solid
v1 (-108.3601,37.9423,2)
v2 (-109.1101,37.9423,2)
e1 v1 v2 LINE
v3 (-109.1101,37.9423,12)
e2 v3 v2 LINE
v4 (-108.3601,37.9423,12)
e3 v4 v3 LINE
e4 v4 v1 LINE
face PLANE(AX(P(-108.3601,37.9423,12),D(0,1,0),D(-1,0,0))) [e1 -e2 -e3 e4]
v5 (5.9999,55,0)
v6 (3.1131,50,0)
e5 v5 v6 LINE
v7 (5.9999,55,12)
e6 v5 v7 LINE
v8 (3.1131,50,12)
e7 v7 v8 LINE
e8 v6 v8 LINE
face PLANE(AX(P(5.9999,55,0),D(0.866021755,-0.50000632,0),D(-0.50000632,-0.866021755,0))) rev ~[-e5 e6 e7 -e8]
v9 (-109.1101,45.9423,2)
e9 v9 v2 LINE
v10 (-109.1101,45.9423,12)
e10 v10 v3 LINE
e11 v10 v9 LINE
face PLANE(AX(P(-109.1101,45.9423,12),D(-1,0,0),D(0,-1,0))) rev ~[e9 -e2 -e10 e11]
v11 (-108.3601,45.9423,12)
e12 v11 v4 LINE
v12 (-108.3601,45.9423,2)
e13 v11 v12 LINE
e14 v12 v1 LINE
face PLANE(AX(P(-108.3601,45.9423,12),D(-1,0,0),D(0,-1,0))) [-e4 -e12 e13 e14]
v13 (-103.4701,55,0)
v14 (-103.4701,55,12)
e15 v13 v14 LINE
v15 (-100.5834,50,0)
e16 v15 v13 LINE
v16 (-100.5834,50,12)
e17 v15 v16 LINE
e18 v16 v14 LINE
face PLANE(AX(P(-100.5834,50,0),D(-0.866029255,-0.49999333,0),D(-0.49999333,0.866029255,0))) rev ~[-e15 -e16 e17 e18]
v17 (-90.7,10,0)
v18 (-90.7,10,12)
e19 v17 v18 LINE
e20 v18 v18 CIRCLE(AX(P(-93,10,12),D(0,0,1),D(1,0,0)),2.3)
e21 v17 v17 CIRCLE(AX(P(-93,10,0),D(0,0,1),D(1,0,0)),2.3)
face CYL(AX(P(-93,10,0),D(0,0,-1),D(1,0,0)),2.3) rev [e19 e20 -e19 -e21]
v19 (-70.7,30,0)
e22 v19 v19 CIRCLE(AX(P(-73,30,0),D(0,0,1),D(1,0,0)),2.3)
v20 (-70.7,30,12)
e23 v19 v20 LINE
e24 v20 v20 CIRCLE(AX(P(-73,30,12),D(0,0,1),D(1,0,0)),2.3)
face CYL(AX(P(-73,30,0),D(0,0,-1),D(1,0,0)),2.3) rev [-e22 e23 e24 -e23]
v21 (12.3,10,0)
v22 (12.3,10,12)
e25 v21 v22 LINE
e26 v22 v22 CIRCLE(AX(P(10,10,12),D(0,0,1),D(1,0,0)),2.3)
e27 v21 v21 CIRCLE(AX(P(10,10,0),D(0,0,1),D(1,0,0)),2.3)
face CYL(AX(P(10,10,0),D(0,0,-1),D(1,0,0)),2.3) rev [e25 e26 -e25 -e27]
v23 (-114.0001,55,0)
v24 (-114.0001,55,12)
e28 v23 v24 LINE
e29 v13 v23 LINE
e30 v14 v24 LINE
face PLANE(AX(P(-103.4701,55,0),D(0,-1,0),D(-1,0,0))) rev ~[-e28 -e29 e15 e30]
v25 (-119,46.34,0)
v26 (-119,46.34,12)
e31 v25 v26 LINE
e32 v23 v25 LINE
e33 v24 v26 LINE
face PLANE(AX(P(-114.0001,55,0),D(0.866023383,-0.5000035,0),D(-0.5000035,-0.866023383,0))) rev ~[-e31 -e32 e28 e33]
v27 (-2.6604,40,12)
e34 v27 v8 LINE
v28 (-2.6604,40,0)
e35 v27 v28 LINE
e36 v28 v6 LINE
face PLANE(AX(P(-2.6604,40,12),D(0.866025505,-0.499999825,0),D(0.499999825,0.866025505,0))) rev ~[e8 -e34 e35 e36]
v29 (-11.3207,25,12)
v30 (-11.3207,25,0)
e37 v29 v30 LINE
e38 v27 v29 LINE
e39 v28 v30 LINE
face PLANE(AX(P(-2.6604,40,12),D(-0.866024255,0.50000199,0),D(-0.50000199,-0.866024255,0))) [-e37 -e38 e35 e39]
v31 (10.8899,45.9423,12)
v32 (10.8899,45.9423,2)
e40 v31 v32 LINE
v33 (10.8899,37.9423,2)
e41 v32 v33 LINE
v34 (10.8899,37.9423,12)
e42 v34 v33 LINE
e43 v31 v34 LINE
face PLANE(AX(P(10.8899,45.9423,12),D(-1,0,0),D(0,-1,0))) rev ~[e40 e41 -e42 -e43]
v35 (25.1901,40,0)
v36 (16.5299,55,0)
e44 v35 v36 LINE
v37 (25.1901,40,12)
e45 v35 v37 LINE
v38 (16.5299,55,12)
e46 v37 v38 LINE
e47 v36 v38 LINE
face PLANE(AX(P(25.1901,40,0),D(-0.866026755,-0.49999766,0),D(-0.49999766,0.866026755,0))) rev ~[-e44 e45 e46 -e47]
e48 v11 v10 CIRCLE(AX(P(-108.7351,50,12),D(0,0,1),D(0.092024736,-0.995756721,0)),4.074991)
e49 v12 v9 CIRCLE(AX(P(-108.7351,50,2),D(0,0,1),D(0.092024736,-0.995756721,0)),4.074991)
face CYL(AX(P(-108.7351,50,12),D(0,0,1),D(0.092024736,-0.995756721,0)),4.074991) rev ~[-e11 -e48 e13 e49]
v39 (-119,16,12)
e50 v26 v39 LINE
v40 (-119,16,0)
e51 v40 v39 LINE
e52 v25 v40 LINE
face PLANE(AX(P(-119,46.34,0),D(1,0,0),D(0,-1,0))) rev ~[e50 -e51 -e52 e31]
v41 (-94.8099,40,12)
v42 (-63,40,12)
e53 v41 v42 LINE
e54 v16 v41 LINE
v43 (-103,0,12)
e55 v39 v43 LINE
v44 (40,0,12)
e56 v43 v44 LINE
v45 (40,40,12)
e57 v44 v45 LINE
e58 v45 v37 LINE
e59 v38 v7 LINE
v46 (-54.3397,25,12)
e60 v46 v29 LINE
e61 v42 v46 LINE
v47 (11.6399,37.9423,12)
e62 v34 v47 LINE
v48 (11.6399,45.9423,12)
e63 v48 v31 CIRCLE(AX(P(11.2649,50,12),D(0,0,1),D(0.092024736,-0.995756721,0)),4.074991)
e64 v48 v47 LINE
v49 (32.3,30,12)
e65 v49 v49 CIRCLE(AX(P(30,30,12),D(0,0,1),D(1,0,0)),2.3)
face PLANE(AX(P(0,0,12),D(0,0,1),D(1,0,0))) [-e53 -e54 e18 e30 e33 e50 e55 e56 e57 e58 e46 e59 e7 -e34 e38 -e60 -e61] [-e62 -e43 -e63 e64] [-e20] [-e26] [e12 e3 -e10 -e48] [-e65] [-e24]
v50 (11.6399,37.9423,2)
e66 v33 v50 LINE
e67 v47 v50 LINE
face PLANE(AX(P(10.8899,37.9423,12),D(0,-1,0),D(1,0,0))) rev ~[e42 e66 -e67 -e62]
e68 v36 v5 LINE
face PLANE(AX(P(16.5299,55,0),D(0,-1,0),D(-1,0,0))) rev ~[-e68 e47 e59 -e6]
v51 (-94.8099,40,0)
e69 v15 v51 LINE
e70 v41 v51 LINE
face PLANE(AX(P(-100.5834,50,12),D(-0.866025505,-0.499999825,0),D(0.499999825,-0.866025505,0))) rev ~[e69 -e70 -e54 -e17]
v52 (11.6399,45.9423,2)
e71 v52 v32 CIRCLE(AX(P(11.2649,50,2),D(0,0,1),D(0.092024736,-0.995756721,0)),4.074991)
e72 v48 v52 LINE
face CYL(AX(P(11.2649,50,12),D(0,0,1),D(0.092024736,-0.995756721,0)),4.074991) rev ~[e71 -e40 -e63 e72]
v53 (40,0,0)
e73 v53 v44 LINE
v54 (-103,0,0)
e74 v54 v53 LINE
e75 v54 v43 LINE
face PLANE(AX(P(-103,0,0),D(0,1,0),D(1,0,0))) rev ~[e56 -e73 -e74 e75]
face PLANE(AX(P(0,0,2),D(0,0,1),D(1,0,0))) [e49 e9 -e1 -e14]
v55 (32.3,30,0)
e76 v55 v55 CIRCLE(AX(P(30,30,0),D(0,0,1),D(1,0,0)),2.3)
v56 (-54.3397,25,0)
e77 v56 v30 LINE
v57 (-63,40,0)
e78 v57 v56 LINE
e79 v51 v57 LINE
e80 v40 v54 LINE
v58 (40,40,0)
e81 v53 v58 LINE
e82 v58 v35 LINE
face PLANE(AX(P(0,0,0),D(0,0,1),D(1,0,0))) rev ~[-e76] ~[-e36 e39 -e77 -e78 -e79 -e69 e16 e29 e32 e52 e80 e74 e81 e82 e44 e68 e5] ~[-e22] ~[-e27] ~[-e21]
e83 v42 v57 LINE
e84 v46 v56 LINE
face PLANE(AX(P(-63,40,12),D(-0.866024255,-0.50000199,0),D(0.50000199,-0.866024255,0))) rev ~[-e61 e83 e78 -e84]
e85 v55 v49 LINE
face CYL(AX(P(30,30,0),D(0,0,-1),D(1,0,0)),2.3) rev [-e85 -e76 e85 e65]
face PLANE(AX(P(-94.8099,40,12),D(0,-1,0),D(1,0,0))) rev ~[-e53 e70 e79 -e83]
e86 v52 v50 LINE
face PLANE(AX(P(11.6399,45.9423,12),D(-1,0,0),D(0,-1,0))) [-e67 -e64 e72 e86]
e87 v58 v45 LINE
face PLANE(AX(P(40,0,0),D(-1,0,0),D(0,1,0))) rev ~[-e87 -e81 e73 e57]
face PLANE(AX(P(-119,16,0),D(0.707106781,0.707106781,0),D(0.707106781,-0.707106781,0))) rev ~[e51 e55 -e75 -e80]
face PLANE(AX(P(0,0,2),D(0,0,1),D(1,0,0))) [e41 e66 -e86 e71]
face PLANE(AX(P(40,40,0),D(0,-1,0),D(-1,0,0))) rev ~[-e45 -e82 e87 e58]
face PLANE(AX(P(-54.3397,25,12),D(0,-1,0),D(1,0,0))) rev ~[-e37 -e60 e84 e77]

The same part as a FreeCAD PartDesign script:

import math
import FreeCAD as App
import Part
import Sketcher
from FreeCAD import Vector
Q = App.Units.Quantity

doc = App.newDocument("Part")
body = doc.addObject("PartDesign::Body", "Body")

# Sketch on XY plane
sketch1 = body.newObject("Sketcher::SketchObject", "Sketch")
sketch1.AttachmentSupport = (doc.getObject("XY_Plane"), [""])
sketch1.MapMode = "FlatFace"
sketch1.addGeometry(Part.LineSegment(Vector(-114.0001, 55, 0), Vector(-119, 46.34, 0)), False)
sketch1.addGeometry(Part.LineSegment(Vector(-119, 46.34, 0), Vector(-119, 16, 0)), False)
sketch1.addGeometry(Part.LineSegment(Vector(-119, 16, 0), Vector(-103, 0, 0)), False)
sketch1.addGeometry(Part.LineSegment(Vector(-103, 0, 0), Vector(40, 0, 0)), False)
sketch1.addGeometry(Part.LineSegment(Vector(40, 0, 0), Vector(40, 40, 0)), False)
sketch1.addGeometry(Part.LineSegment(Vector(40, 40, 0), Vector(25.1901, 40, 0)), False)
sketch1.addGeometry(Part.LineSegment(Vector(25.1901, 40, 0), Vector(16.5299, 55, 0)), False)
sketch1.addGeometry(Part.LineSegment(Vector(16.5299, 55, 0), Vector(5.9999, 55, 0)), False)
sketch1.addGeometry(Part.LineSegment(Vector(5.9999, 55, 0), Vector(3.1131, 50, 0)), False)
sketch1.addGeometry(Part.LineSegment(Vector(3.1131, 50, 0), Vector(-100.5834, 50, 0)), False)
sketch1.addGeometry(Part.LineSegment(Vector(-100.5834, 50, 0), Vector(-103.4701, 55, 0)), False)
sketch1.addGeometry(Part.LineSegment(Vector(-103.4701, 55, 0), Vector(-114.0001, 55, 0)), False)
sketch1.addGeometry(Part.Circle(Vector(-93, 10, 0), Vector(0, 0, 1), 2.3), False)
sketch1.addGeometry(Part.Circle(Vector(10, 10, 0), Vector(0, 0, 1), 2.3), False)
sketch1.addGeometry(Part.Circle(Vector(-73, 30, 0), Vector(0, 0, 1), 2.3), False)
sketch1.addGeometry(Part.Circle(Vector(30, 30, 0), Vector(0, 0, 1), 2.3), False)
sketch1.addConstraint(Sketcher.Constraint("Coincident", 0, 2, 1, 1))
sketch1.addConstraint(Sketcher.Constraint("Coincident", 1, 2, 2, 1))
sketch1.addConstraint(Sketcher.Constraint("Coincident", 2, 2, 3, 1))
sketch1.addConstraint(Sketcher.Constraint("Coincident", 3, 2, 4, 1))
sketch1.addConstraint(Sketcher.Constraint("Coincident", 4, 2, 5, 1))
sketch1.addConstraint(Sketcher.Constraint("Coincident", 5, 2, 6, 1))
sketch1.addConstraint(Sketcher.Constraint("Coincident", 6, 2, 7, 1))
sketch1.addConstraint(Sketcher.Constraint("Coincident", 7, 2, 8, 1))
sketch1.addConstraint(Sketcher.Constraint("Coincident", 8, 2, 9, 1))
sketch1.addConstraint(Sketcher.Constraint("Coincident", 9, 2, 10, 1))
sketch1.addConstraint(Sketcher.Constraint("Coincident", 10, 2, 11, 1))
sketch1.addConstraint(Sketcher.Constraint("Coincident", 11, 2, 0, 1))
sketch1.addConstraint(Sketcher.Constraint("Vertical", 1))
sketch1.addConstraint(Sketcher.Constraint("Horizontal", 3))
sketch1.addConstraint(Sketcher.Constraint("Vertical", 4))
sketch1.addConstraint(Sketcher.Constraint("Horizontal", 5))
sketch1.addConstraint(Sketcher.Constraint("Horizontal", 7))
sketch1.addConstraint(Sketcher.Constraint("Horizontal", 9))
sketch1.addConstraint(Sketcher.Constraint("Horizontal", 11))
sketch1.addConstraint(Sketcher.Constraint("Equal", 12, 13))
sketch1.addConstraint(Sketcher.Constraint("Equal", 13, 14))
sketch1.addConstraint(Sketcher.Constraint("Equal", 14, 15))
sketch1.addConstraint(Sketcher.Constraint("PointOnObject", 2, 2, -1))
sketch1.addConstraint(Sketcher.Constraint("Parallel", 0, 8))
sketch1.addConstraint(Sketcher.Constraint("Parallel", 6, 10))
sketch1.addConstraint(Sketcher.Constraint("Horizontal", 12, 3, 13, 3))
sketch1.addConstraint(Sketcher.Constraint("Horizontal", 14, 3, 15, 3))
sketch1.addConstraint(Sketcher.Constraint("Horizontal", 7, 2, 10, 2))
sketch1.addConstraint(Sketcher.Constraint("Equal", 7, 11))
sketch1.addConstraint(Sketcher.Constraint("Equal", 8, 10))
sketch1.addConstraint(Sketcher.Constraint("Angle", 0, Q("-120.0002 deg")))
sketch1.addConstraint(Sketcher.Constraint("DistanceY", -1, 1, 1, 2, 16.0))
sketch1.addConstraint(Sketcher.Constraint("DistanceY", -1, 1, 8, 2, 50.0))
sketch1.addConstraint(Sketcher.Constraint("DistanceX", 12, 3, 14, 3, 20.0))
sketch1.addConstraint(Sketcher.Constraint("DistanceY", 12, 3, 14, 3, 20.0))
sketch1.addConstraint(Sketcher.Constraint("DistanceX", 14, 3, 13, 3, 83.0))
sketch1.addConstraint(Sketcher.Constraint("DistanceX", 13, 3, 15, 3, 20.0))
sketch1.addConstraint(Sketcher.Constraint("DistanceX", 0, 2, 12, 3, 26.0))
sketch1.addConstraint(Sketcher.Constraint("DistanceX", 1, 2, 2, 2, 16.0))
sketch1.addConstraint(Sketcher.Constraint("DistanceY", 5, 2, 6, 2, 15.0))
sketch1.addConstraint(Sketcher.Constraint("DistanceX", 7, 2, 13, 3, 4.0))
sketch1.addConstraint(Sketcher.Constraint("DistanceY", 8, 2, 7, 2, 5.0))
sketch1.addConstraint(Sketcher.Constraint("DistanceY", 15, 3, 8, 2, 20.0))
sketch1.addConstraint(Sketcher.Constraint("DistanceX", 0, 2, 11, 2, 5.0))
sketch1.addConstraint(Sketcher.Constraint("Diameter", 12, 4.6))
sketch1.addConstraint(Sketcher.Constraint("DistanceX", 7, 2, 7, 1, 10.53))
sketch1.addConstraint(Sketcher.Constraint("DistanceX", 3, 1, 3, 2, 143.0))
sketch1.addConstraint(Sketcher.Constraint("DistanceX", 12, 3, -1, 1, 93.0))
pad1 = body.newObject("PartDesign::Pad", "Pad")
pad1.Profile = sketch1
pad1.Length = 12

# Sketch on XY plane
sketch2 = body.newObject("Sketcher::SketchObject", "Sketch001")
sketch2.AttachmentSupport = (doc.getObject("XY_Plane"), [""])
sketch2.MapMode = "FlatFace"
sketch2.AttachmentOffset = App.Placement(Vector(0, 0, 12), App.Rotation())
sketch2.addGeometry(Part.LineSegment(Vector(11.6399, 37.9423, 0), Vector(11.6399, 45.9423, 0)), False)
sketch2.addGeometry(Part.ArcOfCircle(Part.Circle(Vector(11.2649, 50, 0), Vector(0, 0, 1), 4.074991), math.radians(-84.719901), math.radians(264.719901)), False)
sketch2.addGeometry(Part.LineSegment(Vector(10.8899, 45.9423, 0), Vector(10.8899, 37.9423, 0)), False)
sketch2.addGeometry(Part.LineSegment(Vector(10.8899, 37.9423, 0), Vector(11.6399, 37.9423, 0)), False)
sketch2.addGeometry(Part.LineSegment(Vector(-108.3601, 37.9423, 0), Vector(-108.3601, 45.9423, 0)), False)
sketch2.addGeometry(Part.ArcOfCircle(Part.Circle(Vector(-108.7351, 50, 0), Vector(0, 0, 1), 4.074991), math.radians(-84.719901), math.radians(264.719901)), False)
sketch2.addGeometry(Part.LineSegment(Vector(-109.1101, 45.9423, 0), Vector(-109.1101, 37.9423, 0)), False)
sketch2.addGeometry(Part.LineSegment(Vector(-109.1101, 37.9423, 0), Vector(-108.3601, 37.9423, 0)), False)
sketch2.addConstraint(Sketcher.Constraint("Coincident", 0, 2, 1, 1))
sketch2.addConstraint(Sketcher.Constraint("Coincident", 1, 2, 2, 1))
sketch2.addConstraint(Sketcher.Constraint("Coincident", 2, 2, 3, 1))
sketch2.addConstraint(Sketcher.Constraint("Coincident", 3, 2, 0, 1))
sketch2.addConstraint(Sketcher.Constraint("Coincident", 4, 2, 5, 1))
sketch2.addConstraint(Sketcher.Constraint("Coincident", 5, 2, 6, 1))
sketch2.addConstraint(Sketcher.Constraint("Coincident", 6, 2, 7, 1))
sketch2.addConstraint(Sketcher.Constraint("Coincident", 7, 2, 4, 1))
sketch2.addConstraint(Sketcher.Constraint("Vertical", 0))
sketch2.addConstraint(Sketcher.Constraint("Vertical", 2))
sketch2.addConstraint(Sketcher.Constraint("Horizontal", 3))
sketch2.addConstraint(Sketcher.Constraint("Vertical", 4))
sketch2.addConstraint(Sketcher.Constraint("Vertical", 6))
sketch2.addConstraint(Sketcher.Constraint("Horizontal", 7))
sketch2.addConstraint(Sketcher.Constraint("Equal", 1, 5))
sketch2.addConstraint(Sketcher.Constraint("Horizontal", 1, 3, 5, 3))
sketch2.addConstraint(Sketcher.Constraint("Horizontal", 0, 2, 1, 2))
sketch2.addConstraint(Sketcher.Constraint("Horizontal", 1, 2, 4, 2))
sketch2.addConstraint(Sketcher.Constraint("Horizontal", 4, 2, 5, 2))
sketch2.addConstraint(Sketcher.Constraint("Horizontal", 3, 2, 6, 2))
sketch2.addConstraint(Sketcher.Constraint("DistanceY", 0, 1, 0, 2, 8.0))
sketch2.addConstraint(Sketcher.Constraint("Radius", 1, 4.075))
sketch2.addConstraint(Sketcher.Constraint("DistanceX", 5, 3, 1, 3, 120.0))
sketch2.addConstraint(Sketcher.Constraint("DistanceX", 3, 1, 3, 2, 0.75))
sketch2.addConstraint(Sketcher.Constraint("DistanceY", -1, 1, 1, 3, 50.0))
sketch2.addConstraint(Sketcher.Constraint("DistanceX", -1, 1, 0, 2, 11.64))
pocket1 = body.newObject("PartDesign::Pocket", "Pocket")
pocket1.Profile = sketch2
pocket1.Length = 10

# Sketch on XY plane
sketch3 = body.newObject("Sketcher::SketchObject", "Sketch002")
sketch3.AttachmentSupport = (doc.getObject("XY_Plane"), [""])
sketch3.MapMode = "FlatFace"
sketch3.AttachmentOffset = App.Placement(Vector(0, 0, 12), App.Rotation())
sketch3.addGeometry(Part.LineSegment(Vector(-2.6604, 40, 0), Vector(3.1131, 50, 0)), False)
sketch3.addGeometry(Part.LineSegment(Vector(3.1131, 50, 0), Vector(-100.5834, 50, 0)), False)
sketch3.addGeometry(Part.LineSegment(Vector(-100.5834, 50, 0), Vector(-94.8099, 40, 0)), False)
sketch3.addGeometry(Part.LineSegment(Vector(-94.8099, 40, 0), Vector(-63, 40, 0)), False)
sketch3.addGeometry(Part.LineSegment(Vector(-63, 40, 0), Vector(-54.3397, 25, 0)), False)
sketch3.addGeometry(Part.LineSegment(Vector(-54.3397, 25, 0), Vector(-11.3207, 25, 0)), False)
sketch3.addGeometry(Part.LineSegment(Vector(-11.3207, 25, 0), Vector(-2.6604, 40, 0)), False)
sketch3.addConstraint(Sketcher.Constraint("Coincident", 0, 2, 1, 1))
sketch3.addConstraint(Sketcher.Constraint("Coincident", 1, 2, 2, 1))
sketch3.addConstraint(Sketcher.Constraint("Coincident", 2, 2, 3, 1))
sketch3.addConstraint(Sketcher.Constraint("Coincident", 3, 2, 4, 1))
sketch3.addConstraint(Sketcher.Constraint("Coincident", 4, 2, 5, 1))
sketch3.addConstraint(Sketcher.Constraint("Coincident", 5, 2, 6, 1))
sketch3.addConstraint(Sketcher.Constraint("Coincident", 6, 2, 0, 1))
sketch3.addConstraint(Sketcher.Constraint("Horizontal", 1))
sketch3.addConstraint(Sketcher.Constraint("Horizontal", 3))
sketch3.addConstraint(Sketcher.Constraint("Horizontal", 5))
sketch3.addConstraint(Sketcher.Constraint("Parallel", 2, 4))
sketch3.addConstraint(Sketcher.Constraint("Parallel", 0, 6))
sketch3.addConstraint(Sketcher.Constraint("Horizontal", 3, 2, 6, 2))
sketch3.addConstraint(Sketcher.Constraint("Equal", 0, 2))
sketch3.addConstraint(Sketcher.Constraint("DistanceY", -1, 1, 2, 2, 40.0))
sketch3.addConstraint(Sketcher.Constraint("DistanceY", 2, 2, 1, 2, 10.0))
sketch3.addConstraint(Sketcher.Constraint("DistanceY", 4, 2, 3, 2, 15.0))
sketch3.addConstraint(Sketcher.Constraint("Angle", 0, Q("60 deg")))
sketch3.addConstraint(Sketcher.Constraint("DistanceX", 3, 2, -1, 1, 63.0))
sketch3.addConstraint(Sketcher.Constraint("DistanceX", 3, 1, 3, 2, 31.81))
sketch3.addConstraint(Sketcher.Constraint("DistanceX", 5, 1, 5, 2, 43.019))
pocket2 = body.newObject("PartDesign::Pocket", "Pocket001")
pocket2.Profile = sketch3
pocket2.Type = "ThroughAll"

doc.recompute()
